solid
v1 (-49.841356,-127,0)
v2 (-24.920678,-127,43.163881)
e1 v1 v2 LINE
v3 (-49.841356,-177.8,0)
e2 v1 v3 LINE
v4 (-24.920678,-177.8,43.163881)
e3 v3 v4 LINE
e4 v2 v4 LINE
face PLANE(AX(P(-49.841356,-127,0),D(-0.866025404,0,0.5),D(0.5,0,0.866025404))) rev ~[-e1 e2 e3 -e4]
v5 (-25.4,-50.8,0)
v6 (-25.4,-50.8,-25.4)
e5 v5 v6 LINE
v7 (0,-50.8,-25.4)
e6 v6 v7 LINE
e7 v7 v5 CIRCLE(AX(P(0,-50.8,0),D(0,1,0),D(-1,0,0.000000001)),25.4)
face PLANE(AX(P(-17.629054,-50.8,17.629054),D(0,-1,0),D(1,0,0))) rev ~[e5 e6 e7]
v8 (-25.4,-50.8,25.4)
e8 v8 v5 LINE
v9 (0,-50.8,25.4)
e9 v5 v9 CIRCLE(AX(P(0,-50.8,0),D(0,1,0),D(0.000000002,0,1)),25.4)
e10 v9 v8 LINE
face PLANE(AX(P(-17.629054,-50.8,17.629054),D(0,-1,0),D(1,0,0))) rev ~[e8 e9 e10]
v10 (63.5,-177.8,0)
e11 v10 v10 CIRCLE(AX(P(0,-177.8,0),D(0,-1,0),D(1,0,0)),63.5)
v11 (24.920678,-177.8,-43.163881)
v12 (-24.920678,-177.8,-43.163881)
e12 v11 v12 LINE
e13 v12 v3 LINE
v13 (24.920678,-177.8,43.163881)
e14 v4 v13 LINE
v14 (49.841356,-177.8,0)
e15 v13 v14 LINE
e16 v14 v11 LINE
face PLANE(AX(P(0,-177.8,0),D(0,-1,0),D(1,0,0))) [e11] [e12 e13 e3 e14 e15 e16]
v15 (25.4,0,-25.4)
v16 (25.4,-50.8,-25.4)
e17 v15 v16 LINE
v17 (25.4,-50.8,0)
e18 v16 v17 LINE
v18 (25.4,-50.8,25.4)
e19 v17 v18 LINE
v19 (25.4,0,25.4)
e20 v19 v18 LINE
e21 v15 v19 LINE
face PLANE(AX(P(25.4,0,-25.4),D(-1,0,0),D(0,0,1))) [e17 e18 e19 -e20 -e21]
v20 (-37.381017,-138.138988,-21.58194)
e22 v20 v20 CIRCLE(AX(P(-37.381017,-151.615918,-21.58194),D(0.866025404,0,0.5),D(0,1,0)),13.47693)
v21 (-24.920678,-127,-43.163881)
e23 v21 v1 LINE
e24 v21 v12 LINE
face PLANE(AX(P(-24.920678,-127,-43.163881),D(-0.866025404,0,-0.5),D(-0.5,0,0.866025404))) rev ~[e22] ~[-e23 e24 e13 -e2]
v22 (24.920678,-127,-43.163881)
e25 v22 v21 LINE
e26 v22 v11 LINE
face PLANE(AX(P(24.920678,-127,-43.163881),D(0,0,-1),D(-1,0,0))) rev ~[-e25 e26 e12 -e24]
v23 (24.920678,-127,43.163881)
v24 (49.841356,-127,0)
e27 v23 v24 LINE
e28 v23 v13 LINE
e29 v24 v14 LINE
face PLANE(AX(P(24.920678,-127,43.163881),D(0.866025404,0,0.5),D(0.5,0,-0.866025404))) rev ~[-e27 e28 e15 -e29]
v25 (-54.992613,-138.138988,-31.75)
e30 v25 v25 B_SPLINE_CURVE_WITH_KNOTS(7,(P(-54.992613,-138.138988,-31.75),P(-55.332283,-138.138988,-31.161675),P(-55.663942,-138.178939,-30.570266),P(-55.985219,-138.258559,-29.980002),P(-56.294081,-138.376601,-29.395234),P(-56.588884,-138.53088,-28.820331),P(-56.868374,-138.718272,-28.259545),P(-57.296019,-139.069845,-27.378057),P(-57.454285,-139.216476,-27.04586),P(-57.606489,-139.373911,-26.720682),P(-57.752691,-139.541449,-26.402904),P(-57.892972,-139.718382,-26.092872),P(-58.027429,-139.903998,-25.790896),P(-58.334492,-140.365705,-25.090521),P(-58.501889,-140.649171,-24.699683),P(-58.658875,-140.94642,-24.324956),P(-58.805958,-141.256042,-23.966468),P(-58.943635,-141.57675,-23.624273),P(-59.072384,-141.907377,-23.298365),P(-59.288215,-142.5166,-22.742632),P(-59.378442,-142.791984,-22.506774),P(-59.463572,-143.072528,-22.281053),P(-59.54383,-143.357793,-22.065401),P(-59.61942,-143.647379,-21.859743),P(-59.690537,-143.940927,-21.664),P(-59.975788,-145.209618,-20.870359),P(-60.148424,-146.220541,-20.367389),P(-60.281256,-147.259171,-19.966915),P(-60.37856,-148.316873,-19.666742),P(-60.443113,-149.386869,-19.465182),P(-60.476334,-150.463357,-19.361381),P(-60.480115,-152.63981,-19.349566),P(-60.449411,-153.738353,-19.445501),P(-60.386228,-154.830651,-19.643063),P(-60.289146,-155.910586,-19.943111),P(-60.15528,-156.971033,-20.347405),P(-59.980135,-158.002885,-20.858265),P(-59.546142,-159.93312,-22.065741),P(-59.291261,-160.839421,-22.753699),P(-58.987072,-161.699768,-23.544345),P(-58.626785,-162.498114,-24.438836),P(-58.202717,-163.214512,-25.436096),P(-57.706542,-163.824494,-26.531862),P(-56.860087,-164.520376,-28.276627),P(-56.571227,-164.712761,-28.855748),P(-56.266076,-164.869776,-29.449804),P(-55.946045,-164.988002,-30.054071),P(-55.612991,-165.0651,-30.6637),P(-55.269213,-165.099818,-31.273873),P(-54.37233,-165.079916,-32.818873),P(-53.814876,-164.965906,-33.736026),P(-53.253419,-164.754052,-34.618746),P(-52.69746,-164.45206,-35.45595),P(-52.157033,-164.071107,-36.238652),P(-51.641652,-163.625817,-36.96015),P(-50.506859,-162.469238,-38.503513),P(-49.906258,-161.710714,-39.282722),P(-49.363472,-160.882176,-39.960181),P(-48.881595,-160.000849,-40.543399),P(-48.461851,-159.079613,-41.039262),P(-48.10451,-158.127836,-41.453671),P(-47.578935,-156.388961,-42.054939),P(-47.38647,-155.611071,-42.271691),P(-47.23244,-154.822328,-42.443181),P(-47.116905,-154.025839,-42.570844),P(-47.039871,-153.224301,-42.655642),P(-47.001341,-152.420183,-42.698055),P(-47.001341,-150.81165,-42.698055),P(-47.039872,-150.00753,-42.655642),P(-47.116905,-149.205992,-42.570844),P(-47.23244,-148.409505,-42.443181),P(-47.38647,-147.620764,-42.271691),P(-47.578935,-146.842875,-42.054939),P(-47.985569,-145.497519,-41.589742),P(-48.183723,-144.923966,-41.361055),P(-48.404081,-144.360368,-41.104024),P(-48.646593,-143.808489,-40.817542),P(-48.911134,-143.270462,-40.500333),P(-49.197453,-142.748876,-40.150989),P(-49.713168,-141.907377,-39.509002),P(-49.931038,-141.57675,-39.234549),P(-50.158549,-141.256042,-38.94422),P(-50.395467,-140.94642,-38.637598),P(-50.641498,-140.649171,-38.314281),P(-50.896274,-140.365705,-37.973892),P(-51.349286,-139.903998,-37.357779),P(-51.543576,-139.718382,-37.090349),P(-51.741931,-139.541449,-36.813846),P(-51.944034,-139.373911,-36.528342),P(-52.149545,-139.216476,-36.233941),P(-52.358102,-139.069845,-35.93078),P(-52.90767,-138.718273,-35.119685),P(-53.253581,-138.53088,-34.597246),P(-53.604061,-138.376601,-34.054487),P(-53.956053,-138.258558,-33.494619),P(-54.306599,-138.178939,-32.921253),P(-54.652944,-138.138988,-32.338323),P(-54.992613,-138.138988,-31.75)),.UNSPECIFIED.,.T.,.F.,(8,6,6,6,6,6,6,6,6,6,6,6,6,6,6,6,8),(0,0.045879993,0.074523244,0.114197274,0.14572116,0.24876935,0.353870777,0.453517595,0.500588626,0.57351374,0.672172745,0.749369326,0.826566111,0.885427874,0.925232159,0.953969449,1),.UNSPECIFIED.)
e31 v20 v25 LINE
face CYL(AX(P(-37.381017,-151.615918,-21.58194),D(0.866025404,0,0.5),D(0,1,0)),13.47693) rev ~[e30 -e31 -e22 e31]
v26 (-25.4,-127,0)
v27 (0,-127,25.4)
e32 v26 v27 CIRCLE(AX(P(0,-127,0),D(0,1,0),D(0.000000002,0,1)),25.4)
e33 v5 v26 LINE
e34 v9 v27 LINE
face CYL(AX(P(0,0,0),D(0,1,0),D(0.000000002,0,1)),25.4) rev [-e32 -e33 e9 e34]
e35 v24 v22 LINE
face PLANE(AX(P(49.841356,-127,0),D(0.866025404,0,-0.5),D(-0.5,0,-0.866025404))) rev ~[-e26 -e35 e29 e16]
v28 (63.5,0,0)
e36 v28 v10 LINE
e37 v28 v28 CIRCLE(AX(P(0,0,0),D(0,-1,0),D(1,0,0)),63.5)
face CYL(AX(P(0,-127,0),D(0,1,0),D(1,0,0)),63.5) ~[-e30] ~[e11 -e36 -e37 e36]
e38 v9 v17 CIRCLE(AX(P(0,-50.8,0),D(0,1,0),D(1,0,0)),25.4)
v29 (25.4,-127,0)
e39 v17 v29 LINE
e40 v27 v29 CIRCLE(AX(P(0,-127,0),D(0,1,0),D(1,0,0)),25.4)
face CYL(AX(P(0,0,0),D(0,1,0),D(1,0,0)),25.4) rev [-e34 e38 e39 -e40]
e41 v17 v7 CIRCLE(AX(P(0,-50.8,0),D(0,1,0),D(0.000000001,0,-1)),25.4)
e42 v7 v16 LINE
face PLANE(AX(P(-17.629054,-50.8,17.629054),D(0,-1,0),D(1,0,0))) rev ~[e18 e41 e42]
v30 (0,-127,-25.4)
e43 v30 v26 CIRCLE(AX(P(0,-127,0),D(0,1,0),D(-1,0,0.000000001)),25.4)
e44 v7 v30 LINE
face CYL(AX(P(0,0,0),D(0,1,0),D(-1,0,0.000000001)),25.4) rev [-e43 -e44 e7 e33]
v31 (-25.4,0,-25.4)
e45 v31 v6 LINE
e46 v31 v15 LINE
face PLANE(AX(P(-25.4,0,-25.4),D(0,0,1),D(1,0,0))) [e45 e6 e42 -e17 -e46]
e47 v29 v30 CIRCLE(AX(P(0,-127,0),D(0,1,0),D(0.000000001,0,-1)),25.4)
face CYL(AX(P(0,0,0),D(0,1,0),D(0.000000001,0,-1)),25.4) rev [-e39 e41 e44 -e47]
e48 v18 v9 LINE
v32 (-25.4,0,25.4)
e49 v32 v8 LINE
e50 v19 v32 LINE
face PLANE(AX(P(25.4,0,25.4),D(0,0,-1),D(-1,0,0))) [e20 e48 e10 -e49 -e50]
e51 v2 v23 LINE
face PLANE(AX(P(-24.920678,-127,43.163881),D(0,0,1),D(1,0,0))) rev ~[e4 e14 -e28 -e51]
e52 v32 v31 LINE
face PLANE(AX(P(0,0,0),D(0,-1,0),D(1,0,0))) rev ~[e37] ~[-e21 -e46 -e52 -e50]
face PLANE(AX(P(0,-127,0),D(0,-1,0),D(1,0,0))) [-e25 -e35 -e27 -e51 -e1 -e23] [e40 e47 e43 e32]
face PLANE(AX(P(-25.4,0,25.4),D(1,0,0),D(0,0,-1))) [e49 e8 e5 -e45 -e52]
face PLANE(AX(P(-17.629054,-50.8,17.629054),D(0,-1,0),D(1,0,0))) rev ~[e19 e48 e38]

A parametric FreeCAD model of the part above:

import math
import FreeCAD as App
import Part
import Sketcher
Q = App.Units.Quantity

doc = App.newDocument("Part")
body = doc.addObject("PartDesign::Body", "Body")

# Sketch on XZ plane
sketch1 = doc.addObject("Sketcher::SketchObject", "Sketch")
body.addObject(sketch1)
sketch1.AttachmentSupport = (doc.XZ_Plane, [""])
sketch1.MapMode = "FlatFace"
sketch1.addGeometry(Part.Circle(App.Vector(0, 0, 0), App.Vector(0, 0, 1), 64), False)
sketch1.addConstraint([
    Sketcher.Constraint("Coincident", 0, 3, -1, 1),
    Sketcher.Constraint("Diameter", 0, Q("5 in")),
])
pad1 = doc.addObject("PartDesign::Pad", "Pad")
body.addObject(pad1)
pad1.Profile = sketch1
pad1.Length = Q("5 in")

# Sketch on XZ plane
sketch2 = doc.addObject("Sketcher::SketchObject", "Sketch001")
body.addObject(sketch2)
sketch2.AttachmentSupport = (doc.XZ_Plane, [""])
sketch2.MapMode = "FlatFace"
sketch2.addGeometry([
    Part.ArcOfCircle(Part.Circle(App.Vector(0, 0, 0), App.Vector(0, 0, 1), 25), math.radians(0), math.radians(90)),
    Part.ArcOfCircle(Part.Circle(App.Vector(0, 0, 0), App.Vector(0, 0, 1), 25), math.radians(90), math.radians(180)),
    Part.ArcOfCircle(Part.Circle(App.Vector(0, 0, 0), App.Vector(0, 0, 1), 25), math.radians(180), math.radians(270)),
    Part.ArcOfCircle(Part.Circle(App.Vector(0, 0, 0), App.Vector(0, 0, 1), 25), math.radians(-90), math.radians(0)),
], False)
sketch2.addConstraint([
    Sketcher.Constraint("Tangent", 0, 2, 1, 1),
    Sketcher.Constraint("Tangent", 1, 2, 2, 1),
    Sketcher.Constraint("Tangent", 2, 2, 3, 1),
    Sketcher.Constraint("Tangent", 3, 2, 0, 1),
    Sketcher.Constraint("Coincident", 0, 3, -1, 1),
    Sketcher.Constraint("Equal", 0, 1),
    Sketcher.Constraint("PointOnObject", 0, 2, -2),
    Sketcher.Constraint("PointOnObject", 1, 2, -1),
    Sketcher.Constraint("PointOnObject", 2, 2, -2),
    Sketcher.Constraint("PointOnObject", 3, 2, -1),
    Sketcher.Constraint("Radius", 0, Q("1 in")),
])
pocket1 = doc.addObject("PartDesign::Pocket", "Pocket")
body.addObject(pocket1)
pocket1.Profile = sketch2
pocket1.Type = "ThroughAll"
pocket1.Reversed = True

# Sketch on XZ plane
sketch3 = doc.addObject("Sketcher::SketchObject", "Sketch002")
body.addObject(sketch3)
sketch3.AttachmentSupport = (doc.XZ_Plane, [""])
sketch3.MapMode = "FlatFace"
sketch3.addGeometry([
    Part.LineSegment(App.Vector(-25, 25, 0), App.Vector(-25, -25, 0)),
    Part.LineSegment(App.Vector(-25, -25, 0), App.Vector(25, -25, 0)),
    Part.LineSegment(App.Vector(25, -25, 0), App.Vector(25, 25, 0)),
    Part.LineSegment(App.Vector(25, 25, 0), App.Vector(-25, 25, 0)),
], False)
sketch3.addConstraint([
    Sketcher.Constraint("Coincident", 0, 2, 1, 1),
    Sketcher.Constraint("Coincident", 1, 2, 2, 1),
    Sketcher.Constraint("Coincident", 2, 2, 3, 1),
    Sketcher.Constraint("Coincident", 3, 2, 0, 1),
    Sketcher.Constraint("Vertical", 0),
    Sketcher.Constraint("Horizontal", 1),
    Sketcher.Constraint("Vertical", 2),
    Sketcher.Constraint("Horizontal", 3),
    Sketcher.Constraint("Symmetric", 0, 2, 2, 2, -1, 1),
    Sketcher.Constraint("Equal", 3, 0),
    Sketcher.Constraint("DistanceX", 1, 1, 1, 2, Q("2 in")),
])
pocket2 = doc.addObject("PartDesign::Pocket", "Pocket001")
body.addObject(pocket2)
pocket2.Profile = sketch3
pocket2.Length = Q("2 in")
pocket2.Reversed = True

# Sketch on XZ plane
sketch4 = doc.addObject("Sketcher::SketchObject", "Sketch003")
body.addObject(sketch4)
sketch4.AttachmentSupport = (doc.XZ_Plane, [""])
sketch4.MapMode = "FlatFace"
sketch4.AttachmentOffset = App.Placement(App.Vector(0, 0, 5 * 25.4), App.Rotation())
sketch4.addGeometry([
    Part.Circle(App.Vector(0, 0, 0), App.Vector(0, 0, 1), 64),  # 0
    Part.LineSegment(App.Vector(-25, -43, 0), App.Vector(-50, 0, 0)),  # 1
    Part.LineSegment(App.Vector(-50, 0, 0), App.Vector(-25, 43, 0)),  # 2
    Part.LineSegment(App.Vector(-25, 43, 0), App.Vector(25, 43, 0)),  # 3
    Part.LineSegment(App.Vector(25, 43, 0), App.Vector(50, 0, 0)),  # 4
    Part.LineSegment(App.Vector(50, 0, 0), App.Vector(25, -43, 0)),  # 5
    Part.LineSegment(App.Vector(25, -43, 0), App.Vector(-25, -43, 0)),  # 6
], False)
sketch4.addConstraint([
    Sketcher.Constraint("Coincident", 1, 2, 2, 1),
    Sketcher.Constraint("Coincident", 2, 2, 3, 1),
    Sketcher.Constraint("Coincident", 3, 2, 4, 1),
    Sketcher.Constraint("Coincident", 4, 2, 5, 1),
    Sketcher.Constraint("Coincident", 5, 2, 6, 1),
    Sketcher.Constraint("Coincident", 6, 2, 1, 1),
    Sketcher.Constraint("Horizontal", 3),
    Sketcher.Constraint("Horizontal", 6),
    Sketcher.Constraint("Coincident", 0, 3, -1, 1),
    Sketcher.Constraint("Symmetric", 1, 2, 4, 2, -1, 1),
    Sketcher.Constraint("Symmetric", 2, 2, 5, 2, -1, 1),
    Sketcher.Constraint("PointOnObject", 1, 2, -1),
    Sketcher.Constraint("Parallel", 1, 4),
    Sketcher.Constraint("Vertical", 3, 2, 5, 2),
    Sketcher.Constraint("Diameter", 0, Q("5 in")),
    Sketcher.Constraint("Angle", 1, Q("120 deg")),
    Sketcher.Constraint("DistanceX", 3, 1, 3, 2, Q("49.841356 mm")),
    Sketcher.Constraint("DistanceY", -1, 1, 2, 2, Q("43.163881 mm")),
])
pad2 = doc.addObject("PartDesign::Pad", "Pad001")
body.addObject(pad2)
pad2.Profile = sketch4
pad2.Length = Q("2 in")

# Sketch on an angled plane
sketch5 = doc.addObject("Sketcher::SketchObject", "Sketch004")
body.addObject(sketch5)
sketch5.Placement = App.Placement(App.Vector(-37.381017, 0, -21.58194), App.Rotation(App.Vector(0, 1, 0), App.Vector(-0.5, 0, 0.866025404), App.Vector(0.866025404, 0, 0.5), "ZXY"))
sketch5.addGeometry(Part.Circle(App.Vector(-152, 0, 0), App.Vector(0, 0, 1), 13), False)
sketch5.addConstraint([
    Sketcher.Constraint("PointOnObject", 0, 3, -1),
    Sketcher.Constraint("Diameter", 0, Q("26.953859 mm")),
    Sketcher.Constraint("DistanceX", 0, 3, -1, 1, Q("151.615918 mm")),
])
pocket3 = doc.addObject("PartDesign::Pocket", "Pocket002")
body.addObject(pocket3)
pocket3.Profile = sketch5
pocket3.Type = "ThroughAll"

doc.recompute()
